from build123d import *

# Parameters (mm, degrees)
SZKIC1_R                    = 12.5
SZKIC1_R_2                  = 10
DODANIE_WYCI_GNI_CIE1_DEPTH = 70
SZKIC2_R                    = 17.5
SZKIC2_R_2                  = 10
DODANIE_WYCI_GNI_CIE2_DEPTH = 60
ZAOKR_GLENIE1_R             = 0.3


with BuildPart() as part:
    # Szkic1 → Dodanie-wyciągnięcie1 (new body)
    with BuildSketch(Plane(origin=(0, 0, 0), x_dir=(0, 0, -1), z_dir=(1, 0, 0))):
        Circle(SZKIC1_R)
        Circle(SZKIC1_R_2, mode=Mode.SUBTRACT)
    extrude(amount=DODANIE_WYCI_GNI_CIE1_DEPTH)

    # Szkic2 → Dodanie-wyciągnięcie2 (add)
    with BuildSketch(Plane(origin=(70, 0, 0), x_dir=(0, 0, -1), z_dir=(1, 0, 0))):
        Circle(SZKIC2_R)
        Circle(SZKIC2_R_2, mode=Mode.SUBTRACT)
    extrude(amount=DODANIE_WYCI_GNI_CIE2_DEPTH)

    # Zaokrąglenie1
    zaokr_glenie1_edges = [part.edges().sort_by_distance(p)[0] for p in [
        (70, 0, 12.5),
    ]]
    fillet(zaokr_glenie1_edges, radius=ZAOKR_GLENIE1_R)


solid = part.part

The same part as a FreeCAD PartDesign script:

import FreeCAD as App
import Part
import Sketcher
Q = App.Units.Quantity


def edges_at(feature, points):
    """Names of the edges that pass closest to the given points."""
    edges = feature.Shape.Edges
    near = lambda p: min(range(len(edges)), key=lambda i: edges[i].distToShape(Part.Vertex(*p))[0])
    return sorted({f"Edge{near(p) + 1}" for p in points})

doc = App.newDocument("Part")
body = doc.addObject("PartDesign::Body", "Body")

# Sketch on YZ plane
sketch1 = doc.addObject("Sketcher::SketchObject", "Sketch")
body.addObject(sketch1)
sketch1.AttachmentSupport = (doc.YZ_Plane, [""])
sketch1.MapMode = "FlatFace"
sketch1.addGeometry(Part.Circle(App.Vector(0, 0, 0), App.Vector(0, 0, 1), 12), False)
sketch1.addGeometry(Part.Circle(App.Vector(0, 0, 0), App.Vector(0, 0, 1), 10), False)
sketch1.addConstraint(Sketcher.Constraint("Coincident", 0, 3, -1, 1))
sketch1.addConstraint(Sketcher.Constraint("Coincident", 1, 3, -1, 1))
sketch1.addConstraint(Sketcher.Constraint("Diameter", 0, Q("25 mm")))
sketch1.addConstraint(Sketcher.Constraint("Diameter", 1, Q("20 mm")))
pad1 = doc.addObject("PartDesign::Pad", "Pad")
body.addObject(pad1)
pad1.Profile = sketch1
pad1.Length = 70

# Sketch on YZ plane
sketch2 = doc.addObject("Sketcher::SketchObject", "Sketch001")
body.addObject(sketch2)
sketch2.AttachmentSupport = (doc.YZ_Plane, [""])
sketch2.MapMode = "FlatFace"
sketch2.AttachmentOffset = App.Placement(App.Vector(0, 0, 70), App.Rotation())
sketch2.addGeometry(Part.Circle(App.Vector(0, 0, 0), App.Vector(0, 0, 1), 18), False)
sketch2.addGeometry(Part.Circle(App.Vector(0, 0, 0), App.Vector(0, 0, 1), 10), False)
sketch2.addConstraint(Sketcher.Constraint("Coincident", 0, 3, -1, 1))
sketch2.addConstraint(Sketcher.Constraint("Coincident", 1, 3, -1, 1))
sketch2.addConstraint(Sketcher.Constraint("Diameter", 0, Q("35 mm")))
sketch2.addConstraint(Sketcher.Constraint("Diameter", 1, Q("20 mm")))
pad2 = doc.addObject("PartDesign::Pad", "Pad001")
body.addObject(pad2)
pad2.Profile = sketch2
pad2.Length = 60
doc.recompute()

fillet = doc.addObject("PartDesign::Fillet", "Fillet")
body.addObject(fillet)
fillet.Base = (pad2, edges_at(pad2, [(70, 0, 12.5)]))
fillet.Radius = 0.3

doc.recompute()
